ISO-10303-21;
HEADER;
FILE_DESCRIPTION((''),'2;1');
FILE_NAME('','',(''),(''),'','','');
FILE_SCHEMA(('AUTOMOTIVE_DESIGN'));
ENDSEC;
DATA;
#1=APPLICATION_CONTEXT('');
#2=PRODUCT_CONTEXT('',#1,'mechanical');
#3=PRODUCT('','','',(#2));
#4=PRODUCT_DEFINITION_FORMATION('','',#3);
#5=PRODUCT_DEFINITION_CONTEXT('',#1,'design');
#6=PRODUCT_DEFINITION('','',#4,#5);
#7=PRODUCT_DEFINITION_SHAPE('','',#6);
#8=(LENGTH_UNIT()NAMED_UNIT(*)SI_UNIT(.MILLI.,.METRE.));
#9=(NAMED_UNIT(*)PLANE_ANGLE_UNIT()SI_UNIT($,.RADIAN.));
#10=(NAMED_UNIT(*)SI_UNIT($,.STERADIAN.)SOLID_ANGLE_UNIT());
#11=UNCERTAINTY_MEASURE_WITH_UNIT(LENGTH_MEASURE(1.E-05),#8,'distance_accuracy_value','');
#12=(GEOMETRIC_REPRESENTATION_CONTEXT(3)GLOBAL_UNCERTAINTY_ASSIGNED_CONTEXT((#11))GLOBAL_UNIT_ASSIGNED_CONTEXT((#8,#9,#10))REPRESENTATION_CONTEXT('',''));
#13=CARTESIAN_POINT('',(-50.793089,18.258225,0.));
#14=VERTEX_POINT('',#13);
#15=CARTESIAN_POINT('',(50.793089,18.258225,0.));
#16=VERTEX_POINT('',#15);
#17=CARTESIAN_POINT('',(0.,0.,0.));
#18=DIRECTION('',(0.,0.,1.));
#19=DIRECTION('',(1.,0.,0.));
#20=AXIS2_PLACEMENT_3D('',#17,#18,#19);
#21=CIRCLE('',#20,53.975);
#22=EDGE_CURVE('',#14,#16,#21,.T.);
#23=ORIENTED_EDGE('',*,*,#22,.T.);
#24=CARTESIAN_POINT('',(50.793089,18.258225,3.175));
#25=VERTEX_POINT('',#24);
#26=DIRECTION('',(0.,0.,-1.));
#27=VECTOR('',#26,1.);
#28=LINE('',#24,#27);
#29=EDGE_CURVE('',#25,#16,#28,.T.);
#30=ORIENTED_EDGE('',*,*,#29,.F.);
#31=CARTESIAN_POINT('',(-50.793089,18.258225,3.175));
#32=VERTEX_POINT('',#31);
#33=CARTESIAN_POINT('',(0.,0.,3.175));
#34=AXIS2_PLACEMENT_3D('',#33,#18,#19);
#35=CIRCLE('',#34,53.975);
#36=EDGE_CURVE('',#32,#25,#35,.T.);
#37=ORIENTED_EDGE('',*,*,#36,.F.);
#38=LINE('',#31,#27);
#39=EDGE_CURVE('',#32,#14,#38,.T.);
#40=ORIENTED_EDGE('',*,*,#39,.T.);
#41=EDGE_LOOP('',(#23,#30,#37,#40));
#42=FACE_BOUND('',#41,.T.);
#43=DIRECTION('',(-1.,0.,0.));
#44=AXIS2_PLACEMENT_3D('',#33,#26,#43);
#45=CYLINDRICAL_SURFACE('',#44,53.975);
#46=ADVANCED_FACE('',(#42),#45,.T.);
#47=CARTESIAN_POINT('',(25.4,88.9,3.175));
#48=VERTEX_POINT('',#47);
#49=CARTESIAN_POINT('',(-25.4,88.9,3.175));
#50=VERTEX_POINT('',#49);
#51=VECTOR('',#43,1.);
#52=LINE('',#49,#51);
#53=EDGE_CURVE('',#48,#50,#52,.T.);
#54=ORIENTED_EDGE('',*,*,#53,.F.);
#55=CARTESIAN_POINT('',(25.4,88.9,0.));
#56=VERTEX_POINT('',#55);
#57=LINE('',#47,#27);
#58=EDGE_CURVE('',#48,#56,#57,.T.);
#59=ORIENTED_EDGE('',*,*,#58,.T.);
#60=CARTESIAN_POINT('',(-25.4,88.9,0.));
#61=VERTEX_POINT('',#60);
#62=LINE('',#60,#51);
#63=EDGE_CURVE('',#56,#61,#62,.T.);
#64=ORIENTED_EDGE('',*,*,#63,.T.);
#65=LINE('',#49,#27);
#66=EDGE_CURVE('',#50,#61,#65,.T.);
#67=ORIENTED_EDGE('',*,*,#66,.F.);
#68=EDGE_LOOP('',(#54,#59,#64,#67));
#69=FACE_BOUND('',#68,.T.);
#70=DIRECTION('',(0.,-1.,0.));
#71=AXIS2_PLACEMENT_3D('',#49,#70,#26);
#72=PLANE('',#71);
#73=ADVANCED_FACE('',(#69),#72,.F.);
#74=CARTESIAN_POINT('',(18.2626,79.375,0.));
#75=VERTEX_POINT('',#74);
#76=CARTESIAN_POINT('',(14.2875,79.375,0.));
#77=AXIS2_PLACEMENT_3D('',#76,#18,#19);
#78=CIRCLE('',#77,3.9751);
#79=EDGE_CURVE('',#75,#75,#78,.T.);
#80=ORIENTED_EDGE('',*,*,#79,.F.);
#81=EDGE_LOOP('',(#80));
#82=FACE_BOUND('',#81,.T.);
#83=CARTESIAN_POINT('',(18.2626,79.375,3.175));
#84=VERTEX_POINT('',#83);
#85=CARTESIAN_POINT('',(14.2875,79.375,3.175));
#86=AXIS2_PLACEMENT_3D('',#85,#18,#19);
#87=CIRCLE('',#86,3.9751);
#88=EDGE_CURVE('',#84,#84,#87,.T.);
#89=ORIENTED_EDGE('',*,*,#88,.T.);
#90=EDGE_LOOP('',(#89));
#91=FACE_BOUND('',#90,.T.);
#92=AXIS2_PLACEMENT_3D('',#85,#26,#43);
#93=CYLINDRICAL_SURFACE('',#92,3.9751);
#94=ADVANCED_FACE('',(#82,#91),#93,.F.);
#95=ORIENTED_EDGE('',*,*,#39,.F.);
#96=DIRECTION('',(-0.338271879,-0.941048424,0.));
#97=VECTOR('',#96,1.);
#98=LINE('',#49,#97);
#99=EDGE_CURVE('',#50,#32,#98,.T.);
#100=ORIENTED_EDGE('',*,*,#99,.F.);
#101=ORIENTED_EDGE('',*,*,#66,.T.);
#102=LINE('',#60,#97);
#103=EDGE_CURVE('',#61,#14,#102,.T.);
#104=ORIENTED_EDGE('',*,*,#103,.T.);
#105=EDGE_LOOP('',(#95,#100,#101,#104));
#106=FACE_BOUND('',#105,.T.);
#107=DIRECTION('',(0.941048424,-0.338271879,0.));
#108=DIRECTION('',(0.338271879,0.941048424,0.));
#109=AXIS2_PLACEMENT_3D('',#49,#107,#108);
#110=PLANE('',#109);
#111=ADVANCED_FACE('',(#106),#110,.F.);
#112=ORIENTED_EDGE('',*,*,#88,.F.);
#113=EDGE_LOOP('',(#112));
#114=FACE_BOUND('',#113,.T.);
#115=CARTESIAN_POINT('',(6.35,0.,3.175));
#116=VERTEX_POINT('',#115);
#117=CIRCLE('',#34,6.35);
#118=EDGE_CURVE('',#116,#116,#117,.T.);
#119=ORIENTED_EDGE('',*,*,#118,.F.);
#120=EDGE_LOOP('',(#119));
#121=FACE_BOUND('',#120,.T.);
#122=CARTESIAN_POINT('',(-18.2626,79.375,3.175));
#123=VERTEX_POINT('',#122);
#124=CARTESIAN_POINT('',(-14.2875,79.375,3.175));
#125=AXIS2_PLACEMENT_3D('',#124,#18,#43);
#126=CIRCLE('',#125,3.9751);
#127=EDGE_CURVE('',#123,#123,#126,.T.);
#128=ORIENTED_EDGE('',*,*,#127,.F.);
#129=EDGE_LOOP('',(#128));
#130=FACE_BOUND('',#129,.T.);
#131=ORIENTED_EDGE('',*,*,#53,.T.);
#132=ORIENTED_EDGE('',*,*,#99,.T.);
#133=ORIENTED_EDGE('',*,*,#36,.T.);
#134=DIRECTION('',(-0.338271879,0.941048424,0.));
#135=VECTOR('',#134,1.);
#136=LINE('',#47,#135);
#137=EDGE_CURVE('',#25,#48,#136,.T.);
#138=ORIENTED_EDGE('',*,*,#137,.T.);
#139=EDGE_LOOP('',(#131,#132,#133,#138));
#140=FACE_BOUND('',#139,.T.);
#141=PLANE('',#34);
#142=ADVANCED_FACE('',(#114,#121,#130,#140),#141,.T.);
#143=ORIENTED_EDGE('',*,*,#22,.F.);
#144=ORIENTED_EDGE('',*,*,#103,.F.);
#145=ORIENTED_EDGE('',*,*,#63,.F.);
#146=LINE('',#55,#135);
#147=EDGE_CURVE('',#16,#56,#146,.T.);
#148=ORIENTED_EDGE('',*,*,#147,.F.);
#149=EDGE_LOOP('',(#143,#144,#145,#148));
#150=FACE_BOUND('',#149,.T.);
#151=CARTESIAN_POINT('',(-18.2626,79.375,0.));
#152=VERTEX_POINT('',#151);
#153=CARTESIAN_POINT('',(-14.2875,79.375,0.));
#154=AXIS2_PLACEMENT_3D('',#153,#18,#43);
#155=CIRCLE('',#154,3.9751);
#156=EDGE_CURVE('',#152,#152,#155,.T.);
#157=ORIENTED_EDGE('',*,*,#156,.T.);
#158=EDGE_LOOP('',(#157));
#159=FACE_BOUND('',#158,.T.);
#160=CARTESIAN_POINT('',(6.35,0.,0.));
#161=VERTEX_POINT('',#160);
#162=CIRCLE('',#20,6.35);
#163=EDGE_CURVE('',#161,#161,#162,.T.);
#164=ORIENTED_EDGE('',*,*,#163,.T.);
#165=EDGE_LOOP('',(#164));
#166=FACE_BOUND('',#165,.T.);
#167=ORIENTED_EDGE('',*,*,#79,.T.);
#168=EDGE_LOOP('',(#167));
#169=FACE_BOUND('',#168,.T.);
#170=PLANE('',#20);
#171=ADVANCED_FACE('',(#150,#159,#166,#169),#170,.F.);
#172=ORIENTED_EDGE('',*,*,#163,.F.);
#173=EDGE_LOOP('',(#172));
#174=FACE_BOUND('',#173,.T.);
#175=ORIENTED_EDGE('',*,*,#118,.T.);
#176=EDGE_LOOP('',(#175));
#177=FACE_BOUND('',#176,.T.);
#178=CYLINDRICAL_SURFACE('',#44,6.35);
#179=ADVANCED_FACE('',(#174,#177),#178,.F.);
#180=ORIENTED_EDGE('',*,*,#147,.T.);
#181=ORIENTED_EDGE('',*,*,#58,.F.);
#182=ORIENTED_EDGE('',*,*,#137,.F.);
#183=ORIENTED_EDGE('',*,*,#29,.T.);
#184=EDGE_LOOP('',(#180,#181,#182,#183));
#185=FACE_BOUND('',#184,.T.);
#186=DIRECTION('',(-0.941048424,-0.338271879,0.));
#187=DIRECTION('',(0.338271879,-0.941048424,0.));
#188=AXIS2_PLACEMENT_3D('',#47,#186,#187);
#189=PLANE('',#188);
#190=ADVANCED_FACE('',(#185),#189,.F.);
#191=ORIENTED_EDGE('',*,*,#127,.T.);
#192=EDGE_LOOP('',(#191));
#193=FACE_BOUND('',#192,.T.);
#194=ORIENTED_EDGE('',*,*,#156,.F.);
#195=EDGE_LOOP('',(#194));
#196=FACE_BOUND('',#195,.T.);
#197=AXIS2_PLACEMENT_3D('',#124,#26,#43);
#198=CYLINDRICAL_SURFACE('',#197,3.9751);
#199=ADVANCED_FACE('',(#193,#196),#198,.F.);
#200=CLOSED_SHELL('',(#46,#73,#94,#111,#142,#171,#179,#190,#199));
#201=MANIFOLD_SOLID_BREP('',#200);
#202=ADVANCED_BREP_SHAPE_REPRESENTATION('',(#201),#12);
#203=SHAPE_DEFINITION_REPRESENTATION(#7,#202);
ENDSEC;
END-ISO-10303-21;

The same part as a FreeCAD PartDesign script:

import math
import FreeCAD as App
import Part
import Sketcher

V = App.Vector
Q = App.Units.Quantity

doc = App.newDocument("Part")
params = doc.addObject("Spreadsheet::Sheet", "Params")
for row, (alias, value) in enumerate([
    ("sketch1_diameter", "0.5 in"),
    ("sketch1_width", "2 in"),
    ("sketch1_diameter2", "0.313 in"),
    ("sketch1_radius", "2.125 in"),
    ("pad1_length", "0.125 in"),
], start=1):
    params.set(f"A{row}", alias)
    params.set(f"B{row}", "=" + value)
    params.setAlias(f"B{row}", alias)

body = doc.addObject("PartDesign::Body", "Body")

# Sketch on XY plane
sketch1 = doc.addObject("Sketcher::SketchObject", "Sketch")
body.addObject(sketch1)
sketch1.AttachmentSupport = (doc.XY_Plane, [""])
sketch1.MapMode = "FlatFace"
sketch1.addGeometry([
    Part.LineSegment(V(25.4, 88.9, 0), V(-25.4, 88.9, 0)),  # 0
    Part.LineSegment(V(-25.4, 88.9, 0), V(-50.8, 18.3, 0)),  # 1
    Part.ArcOfCircle(Part.Circle(V(0, 0, 0), V(0, 0, 1), 54), math.radians(160), math.radians(380)),  # 2
    Part.LineSegment(V(50.8, 18.3, 0), V(25.4, 88.9, 0)),  # 3
    Part.Circle(V(0, 0, 0), V(0, 0, 1), 6.3),  # 4
    Part.Circle(V(14.3, 79.4, 0), V(0, 0, 1), 4),  # 5
    Part.Circle(V(-14.3, 79.4, 0), V(0, 0, 1), 4),  # 6
], False)
sketch1.addConstraint([
    Sketcher.Constraint("Coincident", 0, 2, 1, 1),
    Sketcher.Constraint("Tangent", 1, 2, 2, 1),
    Sketcher.Constraint("Tangent", 2, 2, 3, 1),
    Sketcher.Constraint("Coincident", 3, 2, 0, 1),
    Sketcher.Constraint("Horizontal", 0),
    Sketcher.Constraint("Coincident", 2, 3, -1, 1),
    Sketcher.Constraint("Coincident", 4, 3, -1, 1),
    Sketcher.Constraint("Equal", 5, 6),
    Sketcher.Constraint("Symmetric", 5, 3, 6, 3, -2),
    Sketcher.Constraint("Horizontal", 1, 2, 2, 2),
    Sketcher.Constraint("Diameter", 4, Q("0.5 in")),
    Sketcher.Constraint("DistanceX", 0, 2, 0, 1, Q("2 in")),
    Sketcher.Constraint("Diameter", 5, Q("0.313 in")),
    Sketcher.Constraint("Radius", 2, Q("2.125 in")),
    Sketcher.Constraint("DistanceY", -1, 1, 0, 2, Q("3.5 in")),
    Sketcher.Constraint("DistanceX", -1, 1, 5, 3, Q("0.5625 in")),
    Sketcher.Constraint("DistanceY", -1, 1, 5, 3, Q("3.125 in")),
])
sketch1.setExpression("Constraints[10]", "Params.sketch1_diameter")
sketch1.setExpression("Constraints[11]", "Params.sketch1_width")
sketch1.setExpression("Constraints[12]", "Params.sketch1_diameter2")
sketch1.setExpression("Constraints[13]", "Params.sketch1_radius")
pad1 = doc.addObject("PartDesign::Pad", "Pad")
body.addObject(pad1)
pad1.Profile = sketch1
pad1.setExpression("Length", "Params.pad1_length")

doc.recompute()
